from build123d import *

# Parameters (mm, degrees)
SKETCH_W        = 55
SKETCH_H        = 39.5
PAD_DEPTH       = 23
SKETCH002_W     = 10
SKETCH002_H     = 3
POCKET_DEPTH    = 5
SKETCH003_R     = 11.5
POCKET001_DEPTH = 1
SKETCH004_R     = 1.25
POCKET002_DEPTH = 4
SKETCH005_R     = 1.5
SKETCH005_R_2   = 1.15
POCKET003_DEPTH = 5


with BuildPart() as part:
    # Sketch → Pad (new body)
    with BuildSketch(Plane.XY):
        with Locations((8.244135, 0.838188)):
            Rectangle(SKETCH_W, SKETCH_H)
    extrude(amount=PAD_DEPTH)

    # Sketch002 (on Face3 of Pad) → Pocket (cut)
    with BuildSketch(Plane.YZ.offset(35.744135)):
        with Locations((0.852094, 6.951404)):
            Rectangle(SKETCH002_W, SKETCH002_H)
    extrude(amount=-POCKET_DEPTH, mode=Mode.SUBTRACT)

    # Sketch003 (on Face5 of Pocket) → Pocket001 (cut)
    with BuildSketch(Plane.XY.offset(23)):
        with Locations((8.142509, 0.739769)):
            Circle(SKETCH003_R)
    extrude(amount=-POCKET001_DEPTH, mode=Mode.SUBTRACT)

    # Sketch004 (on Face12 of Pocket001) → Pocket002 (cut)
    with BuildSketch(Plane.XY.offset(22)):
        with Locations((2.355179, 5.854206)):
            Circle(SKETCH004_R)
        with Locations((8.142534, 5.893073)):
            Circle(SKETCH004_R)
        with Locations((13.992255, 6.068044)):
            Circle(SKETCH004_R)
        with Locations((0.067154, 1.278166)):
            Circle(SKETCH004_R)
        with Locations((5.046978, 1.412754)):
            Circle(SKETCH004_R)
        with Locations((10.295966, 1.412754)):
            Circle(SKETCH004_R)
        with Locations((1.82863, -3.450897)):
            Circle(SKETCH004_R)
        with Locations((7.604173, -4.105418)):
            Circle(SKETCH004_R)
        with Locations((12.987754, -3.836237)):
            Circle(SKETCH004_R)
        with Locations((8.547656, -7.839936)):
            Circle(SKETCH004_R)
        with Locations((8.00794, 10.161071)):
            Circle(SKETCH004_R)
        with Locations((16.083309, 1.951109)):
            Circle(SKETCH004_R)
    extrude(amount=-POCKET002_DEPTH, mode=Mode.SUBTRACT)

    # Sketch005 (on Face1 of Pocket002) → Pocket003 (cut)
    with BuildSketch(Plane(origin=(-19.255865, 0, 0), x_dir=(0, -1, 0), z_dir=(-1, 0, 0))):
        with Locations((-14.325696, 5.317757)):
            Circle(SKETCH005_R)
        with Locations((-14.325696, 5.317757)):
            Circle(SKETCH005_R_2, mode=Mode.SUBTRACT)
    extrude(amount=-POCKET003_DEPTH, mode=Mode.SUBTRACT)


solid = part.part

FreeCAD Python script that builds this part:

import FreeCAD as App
import Part
import Sketcher
from FreeCAD import Vector
Q = App.Units.Quantity


def add_polygon(sketch, points):
    """Adds a closed chain of lines whose ends are joined by coincident constraints."""
    first, n = sketch.GeometryCount, len(points)
    for a, b in zip(points, points[1:] + points[:1]):
        sketch.addGeometry(Part.LineSegment(App.Vector(*a, 0), App.Vector(*b, 0)), False)
    for i in range(n):
        sketch.addConstraint(Sketcher.Constraint("Coincident", first + i, 2, first + (i + 1) % n, 1))

doc = App.newDocument("Part")
params = doc.addObject("Spreadsheet::Sheet", "Params")
for row, (alias, value) in enumerate([
    ("sketch1_width", "55 mm"),
    ("sketch1_height", "39.5 mm"),
    ("pad1_length", "23 mm"),
    ("sketch2_width", "10 mm"),
    ("sketch2_height", "3 mm"),
    ("pocket1_length", "5 mm"),
    ("sketch3_diameter", "23 mm"),
    ("pocket2_length", "1 mm"),
    ("sketch4_diameter", "2.5 mm"),
    ("pocket3_length", "4 mm"),
    ("sketch5_diameter", "3 mm"),
    ("sketch5_diameter2", "2.3 mm"),
    ("pocket4_length", "5 mm"),
], start=1):
    params.set(f"A{row}", alias)
    params.set(f"B{row}", "=" + value)
    params.setAlias(f"B{row}", alias)

body = doc.addObject("PartDesign::Body", "Body")

# Sketch on XY plane
sketch1 = body.newObject("Sketcher::SketchObject", "Sketch")
sketch1.AttachmentSupport = (doc.getObject("XY_Plane"), [""])
sketch1.MapMode = "FlatFace"
add_polygon(sketch1, [(-19.255865, 20.588188), (-19.255865, -18.911812), (35.744135, -18.911812), (35.744135, 20.588188)])  # lines 0-3
sketch1.addConstraint(Sketcher.Constraint("Vertical", 0))
sketch1.addConstraint(Sketcher.Constraint("Horizontal", 1))
sketch1.addConstraint(Sketcher.Constraint("Vertical", 2))
sketch1.addConstraint(Sketcher.Constraint("Horizontal", 3))
sketch1.addConstraint(Sketcher.Constraint("DistanceX", 1, 1, 1, 2, Q("55 mm")))
sketch1.addConstraint(Sketcher.Constraint("DistanceY", 0, 2, 0, 1, Q("39.5 mm")))
sketch1.addConstraint(Sketcher.Constraint("DistanceX", 0, 2, -1, 1, Q("19.255865 mm")))
sketch1.addConstraint(Sketcher.Constraint("DistanceY", 0, 2, -1, 1, Q("18.911812 mm")))
sketch1.setExpression("Constraints[8]", "Params.sketch1_width")
sketch1.setExpression("Constraints[9]", "Params.sketch1_height")
pad1 = body.newObject("PartDesign::Pad", "Pad")
pad1.Profile = sketch1
pad1.setExpression("Length", "Params.pad1_length")

# Sketch on YZ plane
sketch2 = body.newObject("Sketcher::SketchObject", "Sketch001")
sketch2.AttachmentSupport = (doc.getObject("YZ_Plane"), [""])
sketch2.MapMode = "FlatFace"
sketch2.AttachmentOffset = App.Placement(Vector(0, 0, 35.744135), App.Rotation())
add_polygon(sketch2, [(-4.147906, 8.451404), (-4.147906, 5.451404), (5.852094, 5.451404), (5.852094, 8.451404)])  # lines 0-3
sketch2.addConstraint(Sketcher.Constraint("Vertical", 0))
sketch2.addConstraint(Sketcher.Constraint("Horizontal", 1))
sketch2.addConstraint(Sketcher.Constraint("Vertical", 2))
sketch2.addConstraint(Sketcher.Constraint("Horizontal", 3))
sketch2.addConstraint(Sketcher.Constraint("DistanceX", 1, 1, 1, 2, Q("10 mm")))
sketch2.addConstraint(Sketcher.Constraint("DistanceY", 0, 2, 0, 1, Q("3 mm")))
sketch2.addConstraint(Sketcher.Constraint("DistanceX", 0, 2, -1, 1, Q("4.147906 mm")))
sketch2.addConstraint(Sketcher.Constraint("DistanceY", -1, 1, 0, 2, Q("5.451404 mm")))
sketch2.setExpression("Constraints[8]", "Params.sketch2_width")
sketch2.setExpression("Constraints[9]", "Params.sketch2_height")
pocket1 = body.newObject("PartDesign::Pocket", "Pocket")
pocket1.Profile = sketch2
pocket1.setExpression("Length", "Params.pocket1_length")

# Sketch on XY plane
sketch3 = body.newObject("Sketcher::SketchObject", "Sketch002")
sketch3.AttachmentSupport = (doc.getObject("XY_Plane"), [""])
sketch3.MapMode = "FlatFace"
sketch3.AttachmentOffset = App.Placement(Vector(0, 0, 23), App.Rotation())
sketch3.addGeometry(Part.Circle(Vector(8.142509, 0.739769, 0), Vector(0, 0, 1), 11.5), False)
sketch3.addConstraint(Sketcher.Constraint("Diameter", 0, Q("23 mm")))
sketch3.addConstraint(Sketcher.Constraint("DistanceX", -1, 1, 0, 3, Q("8.142509 mm")))
sketch3.addConstraint(Sketcher.Constraint("DistanceY", -1, 1, 0, 3, Q("0.739769 mm")))
sketch3.setExpression("Constraints[0]", "Params.sketch3_diameter")
pocket2 = body.newObject("PartDesign::Pocket", "Pocket001")
pocket2.Profile = sketch3
pocket2.setExpression("Length", "Params.pocket2_length")

# Sketch on XY plane
sketch4 = body.newObject("Sketcher::SketchObject", "Sketch003")
sketch4.AttachmentSupport = (doc.getObject("XY_Plane"), [""])
sketch4.MapMode = "FlatFace"
sketch4.AttachmentOffset = App.Placement(Vector(0, 0, 22), App.Rotation())
sketch4.addGeometry(Part.Circle(Vector(2.355179, 5.854206, 0), Vector(0, 0, 1), 1.25), False)
sketch4.addGeometry(Part.Circle(Vector(8.142534, 5.893073, 0), Vector(0, 0, 1), 1.25), False)
sketch4.addGeometry(Part.Circle(Vector(13.992255, 6.068044, 0), Vector(0, 0, 1), 1.25), False)
sketch4.addGeometry(Part.Circle(Vector(0.067154, 1.278166, 0), Vector(0, 0, 1), 1.25), False)
sketch4.addGeometry(Part.Circle(Vector(5.046978, 1.412754, 0), Vector(0, 0, 1), 1.25), False)
sketch4.addGeometry(Part.Circle(Vector(10.295966, 1.412754, 0), Vector(0, 0, 1), 1.25), False)
sketch4.addGeometry(Part.Circle(Vector(1.82863, -3.450897, 0), Vector(0, 0, 1), 1.25), False)
sketch4.addGeometry(Part.Circle(Vector(7.604173, -4.105418, 0), Vector(0, 0, 1), 1.25), False)
sketch4.addGeometry(Part.Circle(Vector(12.987754, -3.836237, 0), Vector(0, 0, 1), 1.25), False)
sketch4.addGeometry(Part.Circle(Vector(8.547656, -7.839936, 0), Vector(0, 0, 1), 1.25), False)
sketch4.addGeometry(Part.Circle(Vector(8.00794, 10.161071, 0), Vector(0, 0, 1), 1.25), False)
sketch4.addGeometry(Part.Circle(Vector(16.083309, 1.951109, 0), Vector(0, 0, 1), 1.25), False)
sketch4.addConstraint(Sketcher.Constraint("Equal", 0, 1))
sketch4.addConstraint(Sketcher.Constraint("Equal", 1, 2))
sketch4.addConstraint(Sketcher.Constraint("Equal", 2, 3))
sketch4.addConstraint(Sketcher.Constraint("Equal", 3, 4))
sketch4.addConstraint(Sketcher.Constraint("Equal", 4, 5))
sketch4.addConstraint(Sketcher.Constraint("Equal", 5, 6))
sketch4.addConstraint(Sketcher.Constraint("Equal", 6, 7))
sketch4.addConstraint(Sketcher.Constraint("Equal", 7, 8))
sketch4.addConstraint(Sketcher.Constraint("Equal", 8, 9))
sketch4.addConstraint(Sketcher.Constraint("Equal", 9, 10))
sketch4.addConstraint(Sketcher.Constraint("Equal", 10, 11))
sketch4.addConstraint(Sketcher.Constraint("Horizontal", 4, 3, 5, 3))
sketch4.addConstraint(Sketcher.Constraint("Diameter", 0, Q("2.5 mm")))
sketch4.addConstraint(Sketcher.Constraint("DistanceX", 3, 3, 2, 3, Q("13.925101 mm")))
sketch4.addConstraint(Sketcher.Constraint("DistanceX", 0, 3, 4, 3, Q("2.691799 mm")))
sketch4.addConstraint(Sketcher.Constraint("DistanceX", 8, 3, 2, 3, Q("1.004501 mm")))
sketch4.addConstraint(Sketcher.Constraint("DistanceX", 9, 3, 8, 3, Q("4.440098 mm")))
sketch4.addConstraint(Sketcher.Constraint("DistanceY", 9, 3, 8, 3, Q("4.003699 mm")))
sketch4.addConstraint(Sketcher.Constraint("DistanceX", -1, 1, 0, 3, Q("2.355179 mm")))
sketch4.addConstraint(Sketcher.Constraint("DistanceX", -1, 1, 6, 3, Q("1.82863 mm")))
sketch4.addConstraint(Sketcher.Constraint("DistanceY", 7, 3, -1, 1, Q("4.105418 mm")))
sketch4.addConstraint(Sketcher.Constraint("DistanceX", -1, 1, 10, 3, Q("8.00794 mm")))
sketch4.addConstraint(Sketcher.Constraint("DistanceY", -1, 1, 10, 3, Q("10.161071 mm")))
sketch4.addConstraint(Sketcher.Constraint("DistanceX", -1, 1, 11, 3, Q("16.083309 mm")))
sketch4.addConstraint(Sketcher.Constraint("DistanceY", -1, 1, 11, 3, Q("1.951109 mm")))
sketch4.addConstraint(Sketcher.Constraint("DistanceX", 1, 3, 2, 3, Q("5.849721 mm")))
sketch4.addConstraint(Sketcher.Constraint("DistanceY", 1, 3, 2, 3, Q("0.174971 mm")))
sketch4.addConstraint(Sketcher.Constraint("DistanceY", 0, 3, 2, 3, Q("0.213838 mm")))
sketch4.addConstraint(Sketcher.Constraint("DistanceY", 3, 3, 0, 3, Q("4.57604 mm")))
sketch4.addConstraint(Sketcher.Constraint("DistanceY", 3, 3, 4, 3, Q("0.134588 mm")))
sketch4.addConstraint(Sketcher.Constraint("DistanceX", 5, 3, 2, 3, Q("3.696289 mm")))
sketch4.addConstraint(Sketcher.Constraint("DistanceY", 6, 3, 4, 3, Q("4.863651 mm")))
sketch4.addConstraint(Sketcher.Constraint("DistanceY", 7, 3, 6, 3, Q("0.654521 mm")))
sketch4.addConstraint(Sketcher.Constraint("DistanceX", 3, 3, 7, 3, Q("7.537019 mm")))
sketch4.addConstraint(Sketcher.Constraint("DistanceY", 7, 3, 8, 3, Q("0.269181 mm")))
sketch4.addConstraint(Sketcher.Constraint("DistanceX", -1, 1, 1, 3, Q("8.142534 mm")))
sketch4.setExpression("Constraints[12]", "Params.sketch4_diameter")
pocket3 = body.newObject("PartDesign::Pocket", "Pocket002")
pocket3.Profile = sketch4
pocket3.setExpression("Length", "Params.pocket3_length")

# Sketch on YZ plane
sketch5 = body.newObject("Sketcher::SketchObject", "Sketch004")
sketch5.AttachmentSupport = (doc.getObject("YZ_Plane"), [""])
sketch5.MapMode = "FlatFace"
sketch5.AttachmentOffset = App.Placement(Vector(0, 0, -19.255865), App.Rotation())
sketch5.addGeometry(Part.Circle(Vector(14.325696, 5.317757, 0), Vector(0, 0, 1), 1.5), False)
sketch5.addGeometry(Part.Circle(Vector(14.325696, 5.317757, 0), Vector(0, 0, 1), 1.15), False)
sketch5.addConstraint(Sketcher.Constraint("Coincident", 1, 3, 0, 3))
sketch5.addConstraint(Sketcher.Constraint("Diameter", 0, Q("3 mm")))
sketch5.addConstraint(Sketcher.Constraint("Diameter", 1, Q("2.3 mm")))
sketch5.addConstraint(Sketcher.Constraint("DistanceX", -1, 1, 0, 3, Q("14.325696 mm")))
sketch5.addConstraint(Sketcher.Constraint("DistanceY", -1, 1, 0, 3, Q("5.317757 mm")))
sketch5.setExpression("Constraints[1]", "Params.sketch5_diameter")
sketch5.setExpression("Constraints[2]", "Params.sketch5_diameter2")
pocket4 = body.newObject("PartDesign::Pocket", "Pocket003")
pocket4.Profile = sketch5
pocket4.setExpression("Length", "Params.pocket4_length")
pocket4.Reversed = True

doc.recompute()
